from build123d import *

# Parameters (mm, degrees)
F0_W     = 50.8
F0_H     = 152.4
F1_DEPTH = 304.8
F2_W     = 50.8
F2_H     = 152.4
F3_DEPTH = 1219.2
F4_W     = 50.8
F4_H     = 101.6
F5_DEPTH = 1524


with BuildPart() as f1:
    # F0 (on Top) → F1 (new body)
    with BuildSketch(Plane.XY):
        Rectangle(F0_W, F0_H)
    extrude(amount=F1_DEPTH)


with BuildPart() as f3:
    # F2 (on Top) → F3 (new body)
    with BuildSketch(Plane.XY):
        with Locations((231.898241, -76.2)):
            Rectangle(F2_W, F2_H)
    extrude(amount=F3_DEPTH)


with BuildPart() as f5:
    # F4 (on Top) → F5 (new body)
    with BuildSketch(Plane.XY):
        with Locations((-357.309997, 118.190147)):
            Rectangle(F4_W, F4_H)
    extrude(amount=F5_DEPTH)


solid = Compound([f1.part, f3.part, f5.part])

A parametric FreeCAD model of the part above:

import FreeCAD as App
import Part
import Sketcher
Q = App.Units.Quantity

doc = App.newDocument("Part")
body = doc.addObject("PartDesign::Body", "Body")

# Sketch on XY plane
sketch1 = body.newObject("Sketcher::SketchObject", "Sketch")
sketch1.AttachmentSupport = (doc.getObject("XY_Plane"), [""])
sketch1.MapMode = "FlatFace"
sketch1.addGeometry([
    Part.LineSegment(App.Vector(-25, 76, 0), App.Vector(-25, -76, 0)),
    Part.LineSegment(App.Vector(-25, -76, 0), App.Vector(25, -76, 0)),
    Part.LineSegment(App.Vector(25, -76, 0), App.Vector(25, 76, 0)),
    Part.LineSegment(App.Vector(25, 76, 0), App.Vector(-25, 76, 0)),
], False)
sketch1.addConstraint([
    Sketcher.Constraint("Coincident", 0, 2, 1, 1),
    Sketcher.Constraint("Coincident", 1, 2, 2, 1),
    Sketcher.Constraint("Coincident", 2, 2, 3, 1),
    Sketcher.Constraint("Coincident", 3, 2, 0, 1),
    Sketcher.Constraint("Vertical", 0),
    Sketcher.Constraint("Horizontal", 1),
    Sketcher.Constraint("Vertical", 2),
    Sketcher.Constraint("Horizontal", 3),
    Sketcher.Constraint("Symmetric", 0, 2, 2, 2, -1, 1),
    Sketcher.Constraint("DistanceX", 1, 1, 1, 2, Q("2 in")),
    Sketcher.Constraint("DistanceY", 0, 2, 0, 1, Q("6 in")),
])
pad1 = body.newObject("PartDesign::Pad", "Pad")
pad1.Profile = sketch1
pad1.Length = Q("12 in")
body2 = doc.addObject("PartDesign::Body", "Body001")

# Sketch on XY plane
sketch2 = body2.newObject("Sketcher::SketchObject", "Sketch001")
sketch2.AttachmentSupport = (doc.getObject("XY_Plane001"), [""])
sketch2.MapMode = "FlatFace"
sketch2.addGeometry([
    Part.LineSegment(App.Vector(206, 0, 0), App.Vector(206, -152, 0)),
    Part.LineSegment(App.Vector(206, -152, 0), App.Vector(257, -152, 0)),
    Part.LineSegment(App.Vector(257, -152, 0), App.Vector(257, 0, 0)),
    Part.LineSegment(App.Vector(257, 0, 0), App.Vector(206, 0, 0)),
], False)
sketch2.addConstraint([
    Sketcher.Constraint("Coincident", 0, 2, 1, 1),
    Sketcher.Constraint("Coincident", 1, 2, 2, 1),
    Sketcher.Constraint("Coincident", 2, 2, 3, 1),
    Sketcher.Constraint("Coincident", 3, 2, 0, 1),
    Sketcher.Constraint("Vertical", 0),
    Sketcher.Constraint("Horizontal", 1),
    Sketcher.Constraint("Vertical", 2),
    Sketcher.Constraint("Horizontal", 3),
    Sketcher.Constraint("PointOnObject", 2, 2, -1),
    Sketcher.Constraint("DistanceX", 1, 1, 1, 2, Q("2 in")),
    Sketcher.Constraint("DistanceY", 0, 2, 0, 1, Q("6 in")),
    Sketcher.Constraint("DistanceX", -1, 1, 0, 2, Q("206.498241 mm")),
])
pad2 = body2.newObject("PartDesign::Pad", "Pad001")
pad2.Profile = sketch2
pad2.Length = Q("48 in")
body3 = doc.addObject("PartDesign::Body", "Body002")

# Sketch on XY plane
sketch3 = body3.newObject("Sketcher::SketchObject", "Sketch002")
sketch3.AttachmentSupport = (doc.getObject("XY_Plane002"), [""])
sketch3.MapMode = "FlatFace"
sketch3.addGeometry([
    Part.LineSegment(App.Vector(-383, 169, 0), App.Vector(-383, 67, 0)),
    Part.LineSegment(App.Vector(-383, 67, 0), App.Vector(-332, 67, 0)),
    Part.LineSegment(App.Vector(-332, 67, 0), App.Vector(-332, 169, 0)),
    Part.LineSegment(App.Vector(-332, 169, 0), App.Vector(-383, 169, 0)),
], False)
sketch3.addConstraint([
    Sketcher.Constraint("Coincident", 0, 2, 1, 1),
    Sketcher.Constraint("Coincident", 1, 2, 2, 1),
    Sketcher.Constraint("Coincident", 2, 2, 3, 1),
    Sketcher.Constraint("Coincident", 3, 2, 0, 1),
    Sketcher.Constraint("Vertical", 0),
    Sketcher.Constraint("Horizontal", 1),
    Sketcher.Constraint("Vertical", 2),
    Sketcher.Constraint("Horizontal", 3),
    Sketcher.Constraint("DistanceX", 1, 1, 1, 2, Q("2 in")),
    Sketcher.Constraint("DistanceY", 0, 2, 0, 1, Q("4 in")),
    Sketcher.Constraint("DistanceX", 0, 2, -1, 1, Q("382.709997 mm")),
    Sketcher.Constraint("DistanceY", -1, 1, 0, 2, Q("67.390147 mm")),
])
pad3 = body3.newObject("PartDesign::Pad", "Pad002")
pad3.Profile = sketch3
pad3.Length = Q("60 in")

doc.recompute()
